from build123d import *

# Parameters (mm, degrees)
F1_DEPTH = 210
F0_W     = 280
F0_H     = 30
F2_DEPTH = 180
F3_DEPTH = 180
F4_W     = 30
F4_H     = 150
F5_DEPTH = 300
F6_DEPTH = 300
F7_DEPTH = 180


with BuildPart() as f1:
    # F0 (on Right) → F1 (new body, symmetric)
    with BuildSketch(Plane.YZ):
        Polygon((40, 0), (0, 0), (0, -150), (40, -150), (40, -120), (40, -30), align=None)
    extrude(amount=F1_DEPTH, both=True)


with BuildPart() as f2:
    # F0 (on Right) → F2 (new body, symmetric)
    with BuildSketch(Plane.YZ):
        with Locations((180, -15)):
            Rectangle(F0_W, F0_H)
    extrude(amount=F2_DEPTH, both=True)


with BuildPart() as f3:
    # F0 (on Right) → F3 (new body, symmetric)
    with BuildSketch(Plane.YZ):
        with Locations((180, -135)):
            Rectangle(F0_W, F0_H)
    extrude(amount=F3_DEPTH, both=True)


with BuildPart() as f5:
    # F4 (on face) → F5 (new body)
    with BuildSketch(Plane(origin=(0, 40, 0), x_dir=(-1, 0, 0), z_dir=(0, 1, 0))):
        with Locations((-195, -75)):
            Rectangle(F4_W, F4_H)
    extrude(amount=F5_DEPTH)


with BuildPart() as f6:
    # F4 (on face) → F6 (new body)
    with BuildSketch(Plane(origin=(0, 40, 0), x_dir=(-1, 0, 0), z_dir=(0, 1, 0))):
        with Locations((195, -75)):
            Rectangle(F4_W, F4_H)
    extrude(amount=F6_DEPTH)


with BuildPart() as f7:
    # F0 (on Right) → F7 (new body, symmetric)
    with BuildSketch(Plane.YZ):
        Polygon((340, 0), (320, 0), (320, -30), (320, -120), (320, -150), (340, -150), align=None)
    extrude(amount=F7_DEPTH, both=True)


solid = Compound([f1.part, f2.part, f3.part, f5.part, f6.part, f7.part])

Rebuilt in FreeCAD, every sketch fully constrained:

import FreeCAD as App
import Part
import Sketcher
from FreeCAD import Vector
Q = App.Units.Quantity

doc = App.newDocument("Part")
body = doc.addObject("PartDesign::Body", "Body")

sketch1 = body.newObject("Sketcher::SketchObject", "Sketch")
sketch1.AttachmentSupport = (doc.getObject("YZ_Plane"), [""])
sketch1.MapMode = "FlatFace"
sketch1.addGeometry(Part.LineSegment(Vector(40, 0, 0), Vector(0, 0, 0)), False)
sketch1.addGeometry(Part.LineSegment(Vector(0, 0, 0), Vector(0, -150, 0)), False)
sketch1.addGeometry(Part.LineSegment(Vector(0, -150, 0), Vector(40, -150, 0)), False)
sketch1.addGeometry(Part.LineSegment(Vector(40, -150, 0), Vector(40, 0, 0)), False)
sketch1.addConstraint(Sketcher.Constraint("Coincident", 0, 2, 1, 1))
sketch1.addConstraint(Sketcher.Constraint("Coincident", 1, 2, 2, 1))
sketch1.addConstraint(Sketcher.Constraint("Coincident", 2, 2, 3, 1))
sketch1.addConstraint(Sketcher.Constraint("Coincident", 3, 2, 0, 1))
sketch1.addConstraint(Sketcher.Constraint("Horizontal", 0))
sketch1.addConstraint(Sketcher.Constraint("Vertical", 1))
sketch1.addConstraint(Sketcher.Constraint("Horizontal", 2))
sketch1.addConstraint(Sketcher.Constraint("Vertical", 3))
sketch1.addConstraint(Sketcher.Constraint("Coincident", 0, 2, -1, 1))
sketch1.addConstraint(Sketcher.Constraint("DistanceX", 0, 2, 0, 1, Q("40 mm")))
sketch1.addConstraint(Sketcher.Constraint("DistanceY", 1, 2, 1, 1, Q("150 mm")))
pad1 = body.newObject("PartDesign::Pad", "Pad")
pad1.Profile = sketch1
pad1.Length = 420
pad1.Midplane = True
body2 = doc.addObject("PartDesign::Body", "Body001")

sketch2 = body2.newObject("Sketcher::SketchObject", "Sketch001")
sketch2.AttachmentSupport = (doc.getObject("YZ_Plane001"), [""])
sketch2.MapMode = "FlatFace"
sketch2.addGeometry(Part.LineSegment(Vector(40, 0, 0), Vector(40, -30, 0)), False)
sketch2.addGeometry(Part.LineSegment(Vector(40, -30, 0), Vector(320, -30, 0)), False)
sketch2.addGeometry(Part.LineSegment(Vector(320, -30, 0), Vector(320, 0, 0)), False)
sketch2.addGeometry(Part.LineSegment(Vector(320, 0, 0), Vector(40, 0, 0)), False)
sketch2.addConstraint(Sketcher.Constraint("Coincident", 0, 2, 1, 1))
sketch2.addConstraint(Sketcher.Constraint("Coincident", 1, 2, 2, 1))
sketch2.addConstraint(Sketcher.Constraint("Coincident", 2, 2, 3, 1))
sketch2.addConstraint(Sketcher.Constraint("Coincident", 3, 2, 0, 1))
sketch2.addConstraint(Sketcher.Constraint("Vertical", 0))
sketch2.addConstraint(Sketcher.Constraint("Horizontal", 1))
sketch2.addConstraint(Sketcher.Constraint("Vertical", 2))
sketch2.addConstraint(Sketcher.Constraint("Horizontal", 3))
sketch2.addConstraint(Sketcher.Constraint("PointOnObject", 2, 2, -1))
sketch2.addConstraint(Sketcher.Constraint("DistanceX", 1, 1, 1, 2, Q("280 mm")))
sketch2.addConstraint(Sketcher.Constraint("DistanceY", 0, 2, 0, 1, Q("30 mm")))
sketch2.addConstraint(Sketcher.Constraint("DistanceX", -1, 1, 0, 2, Q("40 mm")))
pad2 = body2.newObject("PartDesign::Pad", "Pad001")
pad2.Profile = sketch2
pad2.Length = 360
pad2.Midplane = True
body3 = doc.addObject("PartDesign::Body", "Body002")

sketch3 = body3.newObject("Sketcher::SketchObject", "Sketch002")
sketch3.AttachmentSupport = (doc.getObject("YZ_Plane002"), [""])
sketch3.MapMode = "FlatFace"
sketch3.addGeometry(Part.LineSegment(Vector(40, -120, 0), Vector(40, -150, 0)), False)
sketch3.addGeometry(Part.LineSegment(Vector(40, -150, 0), Vector(320, -150, 0)), False)
sketch3.addGeometry(Part.LineSegment(Vector(320, -150, 0), Vector(320, -120, 0)), False)
sketch3.addGeometry(Part.LineSegment(Vector(320, -120, 0), Vector(40, -120, 0)), False)
sketch3.addConstraint(Sketcher.Constraint("Coincident", 0, 2, 1, 1))
sketch3.addConstraint(Sketcher.Constraint("Coincident", 1, 2, 2, 1))
sketch3.addConstraint(Sketcher.Constraint("Coincident", 2, 2, 3, 1))
sketch3.addConstraint(Sketcher.Constraint("Coincident", 3, 2, 0, 1))
sketch3.addConstraint(Sketcher.Constraint("Vertical", 0))
sketch3.addConstraint(Sketcher.Constraint("Horizontal", 1))
sketch3.addConstraint(Sketcher.Constraint("Vertical", 2))
sketch3.addConstraint(Sketcher.Constraint("Horizontal", 3))
sketch3.addConstraint(Sketcher.Constraint("DistanceX", 1, 1, 1, 2, Q("280 mm")))
sketch3.addConstraint(Sketcher.Constraint("DistanceY", 0, 2, 0, 1, Q("30 mm")))
sketch3.addConstraint(Sketcher.Constraint("DistanceX", -1, 1, 0, 2, Q("40 mm")))
sketch3.addConstraint(Sketcher.Constraint("DistanceY", 0, 2, -1, 1, Q("150 mm")))
pad3 = body3.newObject("PartDesign::Pad", "Pad002")
pad3.Profile = sketch3
pad3.Length = 360
pad3.Midplane = True
body4 = doc.addObject("PartDesign::Body", "Body003")

sketch4 = body4.newObject("Sketcher::SketchObject", "Sketch003")
sketch4.AttachmentSupport = (doc.getObject("XZ_Plane003"), [""])
sketch4.MapMode = "FlatFace"
sketch4.AttachmentOffset = App.Placement(Vector(0, 0, -40), App.Rotation())
sketch4.addGeometry(Part.LineSegment(Vector(210, 0, 0), Vector(210, -150, 0)), False)
sketch4.addGeometry(Part.LineSegment(Vector(210, -150, 0), Vector(180, -150, 0)), False)
sketch4.addGeometry(Part.LineSegment(Vector(180, -150, 0), Vector(180, 0, 0)), False)
sketch4.addGeometry(Part.LineSegment(Vector(180, 0, 0), Vector(210, 0, 0)), False)
sketch4.addConstraint(Sketcher.Constraint("Coincident", 0, 2, 1, 1))
sketch4.addConstraint(Sketcher.Constraint("Coincident", 1, 2, 2, 1))
sketch4.addConstraint(Sketcher.Constraint("Coincident", 2, 2, 3, 1))
sketch4.addConstraint(Sketcher.Constraint("Coincident", 3, 2, 0, 1))
sketch4.addConstraint(Sketcher.Constraint("Vertical", 0))
sketch4.addConstraint(Sketcher.Constraint("Horizontal", 1))
sketch4.addConstraint(Sketcher.Constraint("Vertical", 2))
sketch4.addConstraint(Sketcher.Constraint("Horizontal", 3))
sketch4.addConstraint(Sketcher.Constraint("PointOnObject", 2, 2, -1))
sketch4.addConstraint(Sketcher.Constraint("DistanceX", 1, 2, 1, 1, Q("30 mm")))
sketch4.addConstraint(Sketcher.Constraint("DistanceY", 0, 2, 0, 1, Q("150 mm")))
sketch4.addConstraint(Sketcher.Constraint("DistanceX", -1, 1, 0, 2, Q("210 mm")))
pad4 = body4.newObject("PartDesign::Pad", "Pad003")
pad4.Profile = sketch4
pad4.Length = 300
pad4.Reversed = True
body5 = doc.addObject("PartDesign::Body", "Body004")

sketch5 = body5.newObject("Sketcher::SketchObject", "Sketch004")
sketch5.AttachmentSupport = (doc.getObject("XZ_Plane004"), [""])
sketch5.MapMode = "FlatFace"
sketch5.AttachmentOffset = App.Placement(Vector(0, 0, -40), App.Rotation())
sketch5.addGeometry(Part.LineSegment(Vector(-180, 0, 0), Vector(-180, -150, 0)), False)
sketch5.addGeometry(Part.LineSegment(Vector(-180, -150, 0), Vector(-210, -150, 0)), False)
sketch5.addGeometry(Part.LineSegment(Vector(-210, -150, 0), Vector(-210, 0, 0)), False)
sketch5.addGeometry(Part.LineSegment(Vector(-210, 0, 0), Vector(-180, 0, 0)), False)
sketch5.addConstraint(Sketcher.Constraint("Coincident", 0, 2, 1, 1))
sketch5.addConstraint(Sketcher.Constraint("Coincident", 1, 2, 2, 1))
sketch5.addConstraint(Sketcher.Constraint("Coincident", 2, 2, 3, 1))
sketch5.addConstraint(Sketcher.Constraint("Coincident", 3, 2, 0, 1))
sketch5.addConstraint(Sketcher.Constraint("Vertical", 0))
sketch5.addConstraint(Sketcher.Constraint("Horizontal", 1))
sketch5.addConstraint(Sketcher.Constraint("Vertical", 2))
sketch5.addConstraint(Sketcher.Constraint("Horizontal", 3))
sketch5.addConstraint(Sketcher.Constraint("PointOnObject", 2, 2, -1))
sketch5.addConstraint(Sketcher.Constraint("DistanceX", 1, 2, 1, 1, Q("30 mm")))
sketch5.addConstraint(Sketcher.Constraint("DistanceY", 0, 2, 0, 1, Q("150 mm")))
sketch5.addConstraint(Sketcher.Constraint("DistanceX", 0, 2, -1, 1, Q("180 mm")))
pad5 = body5.newObject("PartDesign::Pad", "Pad004")
pad5.Profile = sketch5
pad5.Length = 300
pad5.Reversed = True
body6 = doc.addObject("PartDesign::Body", "Body005")

sketch6 = body6.newObject("Sketcher::SketchObject", "Sketch005")
sketch6.AttachmentSupport = (doc.getObject("YZ_Plane005"), [""])
sketch6.MapMode = "FlatFace"
sketch6.addGeometry(Part.LineSegment(Vector(340, 0, 0), Vector(320, 0, 0)), False)
sketch6.addGeometry(Part.LineSegment(Vector(320, 0, 0), Vector(320, -150, 0)), False)
sketch6.addGeometry(Part.LineSegment(Vector(320, -150, 0), Vector(340, -150, 0)), False)
sketch6.addGeometry(Part.LineSegment(Vector(340, -150, 0), Vector(340, 0, 0)), False)
sketch6.addConstraint(Sketcher.Constraint("Coincident", 0, 2, 1, 1))
sketch6.addConstraint(Sketcher.Constraint("Coincident", 1, 2, 2, 1))
sketch6.addConstraint(Sketcher.Constraint("Coincident", 2, 2, 3, 1))
sketch6.addConstraint(Sketcher.Constraint("Coincident", 3, 2, 0, 1))
sketch6.addConstraint(Sketcher.Constraint("Horizontal", 0))
sketch6.addConstraint(Sketcher.Constraint("Vertical", 1))
sketch6.addConstraint(Sketcher.Constraint("Horizontal", 2))
sketch6.addConstraint(Sketcher.Constraint("Vertical", 3))
sketch6.addConstraint(Sketcher.Constraint("PointOnObject", 0, 2, -1))
sketch6.addConstraint(Sketcher.Constraint("DistanceX", 0, 2, 0, 1, Q("20 mm")))
sketch6.addConstraint(Sketcher.Constraint("DistanceY", 1, 2, 1, 1, Q("150 mm")))
sketch6.addConstraint(Sketcher.Constraint("DistanceX", -1, 1, 0, 2, Q("320 mm")))
pad6 = body6.newObject("PartDesign::Pad", "Pad005")
pad6.Profile = sketch6
pad6.Length = 360
pad6.Midplane = True

doc.recompute()
